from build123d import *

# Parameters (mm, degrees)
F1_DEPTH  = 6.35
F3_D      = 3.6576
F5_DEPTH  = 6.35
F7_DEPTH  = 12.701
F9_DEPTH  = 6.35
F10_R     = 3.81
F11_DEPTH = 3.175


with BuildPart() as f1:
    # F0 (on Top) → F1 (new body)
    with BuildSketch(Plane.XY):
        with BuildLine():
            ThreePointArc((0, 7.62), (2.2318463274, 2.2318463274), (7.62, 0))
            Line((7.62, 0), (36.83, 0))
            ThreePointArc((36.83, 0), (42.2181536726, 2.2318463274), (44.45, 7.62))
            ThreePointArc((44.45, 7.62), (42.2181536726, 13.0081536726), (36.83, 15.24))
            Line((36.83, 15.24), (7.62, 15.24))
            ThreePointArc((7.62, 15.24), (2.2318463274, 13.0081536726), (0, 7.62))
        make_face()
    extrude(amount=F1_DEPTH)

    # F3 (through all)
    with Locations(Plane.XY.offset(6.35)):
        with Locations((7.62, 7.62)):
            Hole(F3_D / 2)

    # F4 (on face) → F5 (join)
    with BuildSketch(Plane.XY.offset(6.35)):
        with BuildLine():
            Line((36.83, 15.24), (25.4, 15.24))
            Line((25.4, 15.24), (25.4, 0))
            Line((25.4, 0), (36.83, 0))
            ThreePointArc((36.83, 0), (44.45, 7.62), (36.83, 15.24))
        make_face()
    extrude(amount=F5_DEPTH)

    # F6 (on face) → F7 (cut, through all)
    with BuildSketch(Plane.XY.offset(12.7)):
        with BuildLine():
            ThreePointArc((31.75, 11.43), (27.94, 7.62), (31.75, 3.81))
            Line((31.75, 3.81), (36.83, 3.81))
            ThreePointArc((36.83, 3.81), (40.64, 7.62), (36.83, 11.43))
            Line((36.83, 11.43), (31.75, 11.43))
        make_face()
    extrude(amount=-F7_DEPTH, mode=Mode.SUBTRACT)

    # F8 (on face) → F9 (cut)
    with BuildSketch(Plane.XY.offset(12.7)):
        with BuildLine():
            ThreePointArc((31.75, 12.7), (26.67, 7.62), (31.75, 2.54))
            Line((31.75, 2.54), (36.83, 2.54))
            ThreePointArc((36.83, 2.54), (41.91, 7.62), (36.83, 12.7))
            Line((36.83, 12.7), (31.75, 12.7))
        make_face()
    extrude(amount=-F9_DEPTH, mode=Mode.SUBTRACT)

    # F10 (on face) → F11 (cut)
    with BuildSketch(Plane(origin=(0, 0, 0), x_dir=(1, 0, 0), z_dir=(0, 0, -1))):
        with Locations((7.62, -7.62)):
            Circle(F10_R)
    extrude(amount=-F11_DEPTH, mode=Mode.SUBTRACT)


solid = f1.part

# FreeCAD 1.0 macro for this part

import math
import FreeCAD as App
import Part
import Sketcher
Q = App.Units.Quantity

doc = App.newDocument("Part")
body = doc.addObject("PartDesign::Body", "Body")

sketch1 = body.newObject("Sketcher::SketchObject", "Sketch")
sketch1.AttachmentSupport = (doc.getObject("XY_Plane"), [""])
sketch1.MapMode = "FlatFace"
sketch1.addGeometry([
    Part.ArcOfCircle(Part.Circle(App.Vector(8, 8, 0), App.Vector(0, 0, 1), 8), math.radians(180), math.radians(270)),
    Part.LineSegment(App.Vector(8, 0, 0), App.Vector(37, 0, 0)),
    Part.ArcOfCircle(Part.Circle(App.Vector(37, 8, 0), App.Vector(0, 0, 1), 8), math.radians(-90), math.radians(0)),
    Part.ArcOfCircle(Part.Circle(App.Vector(37, 8, 0), App.Vector(0, 0, 1), 8), math.radians(0), math.radians(90)),
    Part.LineSegment(App.Vector(37, 15, 0), App.Vector(8, 15, 0)),
    Part.ArcOfCircle(Part.Circle(App.Vector(8, 8, 0), App.Vector(0, 0, 1), 8), math.radians(90), math.radians(180)),
], False)
sketch1.addConstraint([
    Sketcher.Constraint("Tangent", 0, 2, 1, 1),
    Sketcher.Constraint("Tangent", 1, 2, 2, 1),
    Sketcher.Constraint("Tangent", 2, 2, 3, 1),
    Sketcher.Constraint("Tangent", 3, 2, 4, 1),
    Sketcher.Constraint("Tangent", 4, 2, 5, 1),
    Sketcher.Constraint("Tangent", 5, 2, 0, 1),
    Sketcher.Constraint("Horizontal", 1),
    Sketcher.Constraint("Horizontal", 4),
    Sketcher.Constraint("Equal", 0, 2),
    Sketcher.Constraint("Equal", 2, 3),
    Sketcher.Constraint("PointOnObject", 0, 2, -1),
    Sketcher.Constraint("PointOnObject", 5, 2, -2),
    Sketcher.Constraint("Horizontal", 5, 3, 2, 2),
    Sketcher.Constraint("Horizontal", 2, 2, 5, 2),
    Sketcher.Constraint("Radius", 0, Q("0.3 in")),
    Sketcher.Constraint("DistanceX", 1, 1, 1, 2, Q("1.15 in")),
])
pad1 = body.newObject("PartDesign::Pad", "Pad")
pad1.Profile = sketch1
pad1.Length = Q("0.25 in")

sketch2 = body.newObject("Sketcher::SketchObject", "Sketch001")
sketch2.AttachmentSupport = (doc.getObject("XY_Plane"), [""])
sketch2.MapMode = "FlatFace"
sketch2.AttachmentOffset = App.Placement(App.Vector(0, 0, 0.25 * 25.4), App.Rotation())
sketch2.addGeometry(Part.Circle(App.Vector(7.6, 7.6, 0), App.Vector(0, 0, 1), 1.8), False)
sketch2.addConstraint([
    Sketcher.Constraint("Diameter", 0, Q("0.144 in")),
    Sketcher.Constraint("DistanceX", -1, 1, 0, 3, Q("0.3 in")),
    Sketcher.Constraint("DistanceY", -1, 1, 0, 3, Q("0.3 in")),
])
doc.recompute()
hole = body.newObject("PartDesign::Hole", "Hole")
hole.Profile = sketch2
hole.ThreadType = "None"
hole.Diameter = Q("0.144 in")
hole.DepthType = "ThroughAll"

sketch3 = body.newObject("Sketcher::SketchObject", "Sketch002")
sketch3.AttachmentSupport = (doc.getObject("XY_Plane"), [""])
sketch3.MapMode = "FlatFace"
sketch3.AttachmentOffset = App.Placement(App.Vector(0, 0, 0.25 * 25.4), App.Rotation())
sketch3.addGeometry([
    Part.LineSegment(App.Vector(37, 15, 0), App.Vector(25, 15, 0)),
    Part.LineSegment(App.Vector(25, 15, 0), App.Vector(25, 0, 0)),
    Part.LineSegment(App.Vector(25, 0, 0), App.Vector(37, 0, 0)),
    Part.ArcOfCircle(Part.Circle(App.Vector(37, 8, 0), App.Vector(0, 0, 1), 8), math.radians(-90), math.radians(90)),
], False)
sketch3.addConstraint([
    Sketcher.Constraint("Coincident", 0, 2, 1, 1),
    Sketcher.Constraint("Coincident", 1, 2, 2, 1),
    Sketcher.Constraint("Tangent", 2, 2, 3, 1),
    Sketcher.Constraint("Tangent", 3, 2, 0, 1),
    Sketcher.Constraint("Horizontal", 0),
    Sketcher.Constraint("Vertical", 1),
    Sketcher.Constraint("Horizontal", 2),
    Sketcher.Constraint("PointOnObject", 1, 2, -1),
    Sketcher.Constraint("Radius", 3, Q("0.3 in")),
    Sketcher.Constraint("DistanceX", -1, 1, 0, 2, Q("1 in")),
    Sketcher.Constraint("DistanceX", 0, 2, 0, 1, Q("0.45 in")),
])
pad2 = body.newObject("PartDesign::Pad", "Pad001")
pad2.Profile = sketch3
pad2.Length = Q("0.25 in")

sketch4 = body.newObject("Sketcher::SketchObject", "Sketch003")
sketch4.AttachmentSupport = (doc.getObject("XY_Plane"), [""])
sketch4.MapMode = "FlatFace"
sketch4.AttachmentOffset = App.Placement(App.Vector(0, 0, 0.5 * 25.4), App.Rotation())
sketch4.addGeometry([
    Part.ArcOfCircle(Part.Circle(App.Vector(31.8, 7.6, 0), App.Vector(0, 0, 1), 3.8), math.radians(90), math.radians(270)),
    Part.LineSegment(App.Vector(31.8, 3.8, 0), App.Vector(36.8, 3.8, 0)),
    Part.ArcOfCircle(Part.Circle(App.Vector(36.8, 7.6, 0), App.Vector(0, 0, 1), 3.8), math.radians(-90), math.radians(90)),
    Part.LineSegment(App.Vector(36.8, 11.4, 0), App.Vector(31.8, 11.4, 0)),
], False)
sketch4.addConstraint([
    Sketcher.Constraint("Tangent", 0, 2, 1, 1),
    Sketcher.Constraint("Tangent", 1, 2, 2, 1),
    Sketcher.Constraint("Tangent", 2, 2, 3, 1),
    Sketcher.Constraint("Tangent", 3, 2, 0, 1),
    Sketcher.Constraint("Horizontal", 1),
    Sketcher.Constraint("Horizontal", 3),
    Sketcher.Constraint("Radius", 0, Q("0.15 in")),
    Sketcher.Constraint("DistanceX", 1, 1, 1, 2, Q("0.2 in")),
    Sketcher.Constraint("DistanceY", -1, 1, 0, 3, Q("0.3 in")),
    Sketcher.Constraint("DistanceX", -1, 1, 0, 3, Q("1.25 in")),
])
pocket1 = body.newObject("PartDesign::Pocket", "Pocket")
pocket1.Profile = sketch4
pocket1.Type = "ThroughAll"

sketch5 = body.newObject("Sketcher::SketchObject", "Sketch004")
sketch5.AttachmentSupport = (doc.getObject("XY_Plane"), [""])
sketch5.MapMode = "FlatFace"
sketch5.AttachmentOffset = App.Placement(App.Vector(0, 0, 0.5 * 25.4), App.Rotation())
sketch5.addGeometry([
    Part.ArcOfCircle(Part.Circle(App.Vector(32, 8, 0), App.Vector(0, 0, 1), 5), math.radians(90), math.radians(270)),
    Part.LineSegment(App.Vector(32, 3, 0), App.Vector(37, 3, 0)),
    Part.ArcOfCircle(Part.Circle(App.Vector(37, 8, 0), App.Vector(0, 0, 1), 5), math.radians(-90), math.radians(90)),
    Part.LineSegment(App.Vector(37, 13, 0), App.Vector(32, 13, 0)),
], False)
sketch5.addConstraint([
    Sketcher.Constraint("Tangent", 0, 2, 1, 1),
    Sketcher.Constraint("Tangent", 1, 2, 2, 1),
    Sketcher.Constraint("Tangent", 2, 2, 3, 1),
    Sketcher.Constraint("Tangent", 3, 2, 0, 1),
    Sketcher.Constraint("Horizontal", 1),
    Sketcher.Constraint("Horizontal", 3),
    Sketcher.Constraint("Radius", 0, Q("0.2 in")),
    Sketcher.Constraint("DistanceX", 1, 1, 1, 2, Q("0.2 in")),
    Sketcher.Constraint("DistanceY", -1, 1, 0, 3, Q("0.3 in")),
    Sketcher.Constraint("DistanceX", -1, 1, 0, 3, Q("1.25 in")),
])
pocket2 = body.newObject("PartDesign::Pocket", "Pocket001")
pocket2.Profile = sketch5
pocket2.Length = Q("0.25 in")

sketch6 = body.newObject("Sketcher::SketchObject", "Sketch005")
sketch6.AttachmentSupport = (doc.getObject("XY_Plane"), [""])
sketch6.MapMode = "FlatFace"
sketch6.addGeometry(Part.Circle(App.Vector(7.6, 7.6, 0), App.Vector(0, 0, 1), 3.8), False)
sketch6.addConstraint([
    Sketcher.Constraint("Diameter", 0, Q("0.3 in")),
    Sketcher.Constraint("DistanceX", -1, 1, 0, 3, Q("0.3 in")),
    Sketcher.Constraint("DistanceY", -1, 1, 0, 3, Q("0.3 in")),
])
pocket3 = body.newObject("PartDesign::Pocket", "Pocket002")
pocket3.Profile = sketch6
pocket3.Length = Q("0.125 in")
pocket3.Reversed = True

doc.recompute()
